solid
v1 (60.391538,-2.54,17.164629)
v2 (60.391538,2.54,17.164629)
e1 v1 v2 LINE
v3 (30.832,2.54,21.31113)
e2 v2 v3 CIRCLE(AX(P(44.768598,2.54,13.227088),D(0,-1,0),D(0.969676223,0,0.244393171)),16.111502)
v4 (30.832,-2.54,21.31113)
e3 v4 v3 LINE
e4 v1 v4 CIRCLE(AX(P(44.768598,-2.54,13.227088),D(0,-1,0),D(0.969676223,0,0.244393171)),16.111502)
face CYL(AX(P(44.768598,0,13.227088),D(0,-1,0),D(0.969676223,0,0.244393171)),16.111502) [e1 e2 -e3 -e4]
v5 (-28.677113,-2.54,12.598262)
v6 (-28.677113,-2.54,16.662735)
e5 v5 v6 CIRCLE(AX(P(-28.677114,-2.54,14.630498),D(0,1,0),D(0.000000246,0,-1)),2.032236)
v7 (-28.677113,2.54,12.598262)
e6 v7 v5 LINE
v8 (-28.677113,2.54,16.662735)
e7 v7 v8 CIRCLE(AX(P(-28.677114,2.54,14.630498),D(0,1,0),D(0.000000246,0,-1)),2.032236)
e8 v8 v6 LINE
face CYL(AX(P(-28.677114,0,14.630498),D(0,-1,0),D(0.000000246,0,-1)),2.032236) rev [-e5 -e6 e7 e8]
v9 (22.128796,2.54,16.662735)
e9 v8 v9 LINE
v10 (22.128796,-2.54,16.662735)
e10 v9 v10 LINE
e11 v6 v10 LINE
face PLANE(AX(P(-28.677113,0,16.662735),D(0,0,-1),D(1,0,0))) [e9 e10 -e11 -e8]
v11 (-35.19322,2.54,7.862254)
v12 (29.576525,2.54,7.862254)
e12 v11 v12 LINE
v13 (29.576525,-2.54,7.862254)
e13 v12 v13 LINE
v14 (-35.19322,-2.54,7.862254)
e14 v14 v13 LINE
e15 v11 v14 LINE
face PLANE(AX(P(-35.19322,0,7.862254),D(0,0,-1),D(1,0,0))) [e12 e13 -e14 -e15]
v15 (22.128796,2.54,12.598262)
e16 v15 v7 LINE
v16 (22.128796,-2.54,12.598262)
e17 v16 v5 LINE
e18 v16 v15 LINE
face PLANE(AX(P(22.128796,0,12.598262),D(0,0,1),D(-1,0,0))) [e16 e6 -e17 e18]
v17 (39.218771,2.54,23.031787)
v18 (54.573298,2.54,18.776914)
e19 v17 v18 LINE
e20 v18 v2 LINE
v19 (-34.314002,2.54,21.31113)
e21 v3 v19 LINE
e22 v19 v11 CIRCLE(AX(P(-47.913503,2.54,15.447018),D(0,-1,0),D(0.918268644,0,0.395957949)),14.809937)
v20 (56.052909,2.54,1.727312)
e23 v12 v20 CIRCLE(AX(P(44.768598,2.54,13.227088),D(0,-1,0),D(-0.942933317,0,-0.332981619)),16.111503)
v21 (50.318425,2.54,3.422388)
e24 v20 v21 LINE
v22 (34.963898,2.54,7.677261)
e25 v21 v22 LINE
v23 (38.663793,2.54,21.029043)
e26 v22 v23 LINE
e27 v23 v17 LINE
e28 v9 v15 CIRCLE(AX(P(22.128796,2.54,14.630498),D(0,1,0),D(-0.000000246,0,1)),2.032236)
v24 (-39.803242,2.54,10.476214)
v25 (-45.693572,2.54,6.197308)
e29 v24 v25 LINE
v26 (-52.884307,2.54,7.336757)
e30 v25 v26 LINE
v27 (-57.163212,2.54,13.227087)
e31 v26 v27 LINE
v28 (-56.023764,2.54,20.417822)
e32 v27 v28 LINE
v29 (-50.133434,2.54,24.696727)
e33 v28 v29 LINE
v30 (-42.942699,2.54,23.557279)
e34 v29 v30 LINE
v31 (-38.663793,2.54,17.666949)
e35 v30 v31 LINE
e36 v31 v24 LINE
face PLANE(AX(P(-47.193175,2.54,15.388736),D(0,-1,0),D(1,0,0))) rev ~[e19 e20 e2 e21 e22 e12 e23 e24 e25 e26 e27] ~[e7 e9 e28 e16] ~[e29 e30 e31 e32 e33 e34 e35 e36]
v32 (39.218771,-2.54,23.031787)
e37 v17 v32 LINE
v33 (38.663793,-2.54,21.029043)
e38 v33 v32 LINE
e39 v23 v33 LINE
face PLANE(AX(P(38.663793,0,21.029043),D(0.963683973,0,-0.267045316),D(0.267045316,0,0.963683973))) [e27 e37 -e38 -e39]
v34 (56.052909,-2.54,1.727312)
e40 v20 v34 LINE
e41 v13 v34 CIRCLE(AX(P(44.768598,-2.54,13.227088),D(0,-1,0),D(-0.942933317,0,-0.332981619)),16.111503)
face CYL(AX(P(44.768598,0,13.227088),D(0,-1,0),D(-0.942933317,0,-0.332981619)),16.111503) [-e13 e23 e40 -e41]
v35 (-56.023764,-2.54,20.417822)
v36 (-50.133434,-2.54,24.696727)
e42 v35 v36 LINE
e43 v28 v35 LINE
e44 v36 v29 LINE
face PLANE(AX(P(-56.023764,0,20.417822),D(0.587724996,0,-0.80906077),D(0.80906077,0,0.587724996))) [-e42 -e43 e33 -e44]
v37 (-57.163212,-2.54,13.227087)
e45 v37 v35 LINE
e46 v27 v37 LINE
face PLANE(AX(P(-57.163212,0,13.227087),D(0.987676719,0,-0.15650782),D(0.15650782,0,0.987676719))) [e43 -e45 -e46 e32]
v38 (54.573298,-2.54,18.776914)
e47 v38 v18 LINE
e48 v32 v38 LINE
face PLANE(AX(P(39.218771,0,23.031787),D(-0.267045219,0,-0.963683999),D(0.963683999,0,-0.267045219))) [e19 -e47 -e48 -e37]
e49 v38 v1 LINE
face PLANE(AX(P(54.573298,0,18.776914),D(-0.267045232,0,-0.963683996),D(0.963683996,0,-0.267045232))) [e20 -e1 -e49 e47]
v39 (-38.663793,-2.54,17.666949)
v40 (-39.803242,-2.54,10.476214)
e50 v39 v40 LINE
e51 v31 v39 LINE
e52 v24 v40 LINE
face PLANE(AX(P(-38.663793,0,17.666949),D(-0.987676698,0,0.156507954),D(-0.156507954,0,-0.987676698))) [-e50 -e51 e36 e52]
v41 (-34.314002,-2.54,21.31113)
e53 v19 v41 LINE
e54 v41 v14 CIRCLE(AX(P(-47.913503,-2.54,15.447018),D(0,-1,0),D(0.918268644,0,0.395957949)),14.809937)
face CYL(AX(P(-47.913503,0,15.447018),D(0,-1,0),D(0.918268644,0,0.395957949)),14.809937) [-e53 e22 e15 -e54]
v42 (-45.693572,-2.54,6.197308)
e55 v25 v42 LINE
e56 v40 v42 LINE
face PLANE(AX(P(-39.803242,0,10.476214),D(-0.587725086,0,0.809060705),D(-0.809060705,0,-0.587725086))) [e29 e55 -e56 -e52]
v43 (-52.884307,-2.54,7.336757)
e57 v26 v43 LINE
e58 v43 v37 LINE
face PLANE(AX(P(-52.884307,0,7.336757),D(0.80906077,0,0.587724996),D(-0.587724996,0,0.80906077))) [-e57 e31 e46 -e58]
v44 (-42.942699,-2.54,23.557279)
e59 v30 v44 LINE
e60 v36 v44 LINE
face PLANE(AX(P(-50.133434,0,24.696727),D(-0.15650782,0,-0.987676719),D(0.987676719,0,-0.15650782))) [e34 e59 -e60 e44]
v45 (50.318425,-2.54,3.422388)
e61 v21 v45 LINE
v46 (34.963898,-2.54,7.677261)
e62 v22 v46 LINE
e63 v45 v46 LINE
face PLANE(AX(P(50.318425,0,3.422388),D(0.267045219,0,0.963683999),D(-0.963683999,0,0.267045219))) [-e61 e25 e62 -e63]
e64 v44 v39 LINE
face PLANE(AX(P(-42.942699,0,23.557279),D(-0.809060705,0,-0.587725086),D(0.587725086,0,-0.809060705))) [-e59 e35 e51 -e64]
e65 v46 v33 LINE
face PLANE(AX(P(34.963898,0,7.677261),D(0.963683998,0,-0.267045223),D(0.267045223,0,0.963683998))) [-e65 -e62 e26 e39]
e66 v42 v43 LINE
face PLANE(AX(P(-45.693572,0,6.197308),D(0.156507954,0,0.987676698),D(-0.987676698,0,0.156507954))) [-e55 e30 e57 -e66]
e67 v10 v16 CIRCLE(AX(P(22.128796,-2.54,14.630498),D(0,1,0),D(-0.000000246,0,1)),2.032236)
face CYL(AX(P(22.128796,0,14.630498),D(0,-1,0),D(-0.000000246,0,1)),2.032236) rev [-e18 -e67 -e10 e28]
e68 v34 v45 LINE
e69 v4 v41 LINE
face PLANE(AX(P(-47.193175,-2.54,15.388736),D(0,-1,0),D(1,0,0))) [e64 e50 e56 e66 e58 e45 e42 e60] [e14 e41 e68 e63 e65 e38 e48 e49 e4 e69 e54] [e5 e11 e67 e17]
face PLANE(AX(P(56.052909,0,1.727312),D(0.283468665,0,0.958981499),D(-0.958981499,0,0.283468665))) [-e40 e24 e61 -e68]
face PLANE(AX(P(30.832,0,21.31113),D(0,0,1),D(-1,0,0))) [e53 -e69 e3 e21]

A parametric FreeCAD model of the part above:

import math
import FreeCAD as App
import Part
import Sketcher

V = App.Vector
Q = App.Units.Quantity

doc = App.newDocument("Part")
params = doc.addObject("Spreadsheet::Sheet", "Params")
for row, (alias, value) in enumerate([
    ("pad1_length", "0.2 in"),
], start=1):
    params.set(f"A{row}", alias)
    params.set(f"B{row}", "=" + value)
    params.setAlias(f"B{row}", alias)

body = doc.addObject("PartDesign::Body", "Body")

# Sketch on XZ plane
sketch1 = doc.addObject("Sketcher::SketchObject", "Sketch")
body.addObject(sketch1)
sketch1.AttachmentSupport = (doc.XZ_Plane, [""])
sketch1.MapMode = "FlatFace"
sketch1.addGeometry(Part.LineSegment(V(30.832, 21.31113, 0), V(-34.314002, 21.31113, 0)), False)
sketch1.addGeometry(Part.ArcOfCircle(Part.Circle(V(-47.913503, 15.447018, 0), V(0, 0, 1), 14.809937), math.radians(23.325732), math.radians(329.193509)), False)
sketch1.addGeometry(Part.LineSegment(V(-35.19322, 7.862254, 0), V(29.576525, 7.862254, 0)), False)
sketch1.addGeometry(Part.ArcOfCircle(Part.Circle(V(44.768598, 13.227088, 0), V(0, 0, 1), 16.111503), math.radians(-160.550152), math.radians(-45.541821)), False)
sketch1.addGeometry(Part.LineSegment(V(56.052909, 1.727312, 0), V(50.318425, 3.422388, 0)), False)
sketch1.addGeometry(Part.LineSegment(V(50.318425, 3.422388, 0), V(34.963898, 7.677261, 0)), False)
sketch1.addGeometry(Part.LineSegment(V(34.963898, 7.677261, 0), V(38.663793, 21.029043, 0)), False)
sketch1.addGeometry(Part.LineSegment(V(38.663793, 21.029043, 0), V(39.218771, 23.031787, 0)), False)
sketch1.addGeometry(Part.LineSegment(V(39.218771, 23.031787, 0), V(54.573298, 18.776914, 0)), False)
sketch1.addGeometry(Part.LineSegment(V(54.573298, 18.776914, 0), V(60.391538, 17.164629, 0)), False)
sketch1.addGeometry(Part.ArcOfCircle(Part.Circle(V(44.768598, 13.227088, 0), V(0, 0, 1), 16.111502), math.radians(14.145975), math.radians(149.883759)), False)
sketch1.addGeometry(Part.LineSegment(V(22.128796, 12.598262, 0), V(-28.677113, 12.598262, 0)), False)
sketch1.addGeometry(Part.ArcOfCircle(Part.Circle(V(-28.677114, 14.630498, 0), V(0, 0, 1), 2.032236), math.radians(89.999986), math.radians(270.000014)), False)
sketch1.addGeometry(Part.LineSegment(V(-28.677113, 16.662735, 0), V(22.128796, 16.662735, 0)), False)
sketch1.addGeometry(Part.ArcOfCircle(Part.Circle(V(22.128796, 14.630498, 0), V(0, 0, 1), 2.032236), math.radians(-90.000014), math.radians(90.000014)), False)
sketch1.addGeometry(Part.LineSegment(V(-50.133434, 24.696727, 0), V(-42.942699, 23.557279, 0)), False)
sketch1.addGeometry(Part.LineSegment(V(-42.942699, 23.557279, 0), V(-38.663793, 17.666949, 0)), False)
sketch1.addGeometry(Part.LineSegment(V(-38.663793, 17.666949, 0), V(-39.803242, 10.476214, 0)), False)
sketch1.addGeometry(Part.LineSegment(V(-39.803242, 10.476214, 0), V(-45.693572, 6.197308, 0)), False)
sketch1.addGeometry(Part.LineSegment(V(-45.693572, 6.197308, 0), V(-52.884307, 7.336757, 0)), False)
sketch1.addGeometry(Part.LineSegment(V(-52.884307, 7.336757, 0), V(-57.163212, 13.227087, 0)), False)
sketch1.addGeometry(Part.LineSegment(V(-57.163212, 13.227087, 0), V(-56.023764, 20.417822, 0)), False)
sketch1.addGeometry(Part.LineSegment(V(-56.023764, 20.417822, 0), V(-50.133434, 24.696727, 0)), False)
sketch1.addConstraint(Sketcher.Constraint("Coincident", 0, 2, 1, 1))
sketch1.addConstraint(Sketcher.Constraint("Coincident", 1, 2, 2, 1))
sketch1.addConstraint(Sketcher.Constraint("Coincident", 2, 2, 3, 1))
sketch1.addConstraint(Sketcher.Constraint("Coincident", 3, 2, 4, 1))
sketch1.addConstraint(Sketcher.Constraint("Coincident", 4, 2, 5, 1))
sketch1.addConstraint(Sketcher.Constraint("Coincident", 5, 2, 6, 1))
sketch1.addConstraint(Sketcher.Constraint("Coincident", 6, 2, 7, 1))
sketch1.addConstraint(Sketcher.Constraint("Coincident", 7, 2, 8, 1))
sketch1.addConstraint(Sketcher.Constraint("Coincident", 8, 2, 9, 1))
sketch1.addConstraint(Sketcher.Constraint("Coincident", 9, 2, 10, 1))
sketch1.addConstraint(Sketcher.Constraint("Coincident", 10, 2, 0, 1))
sketch1.addConstraint(Sketcher.Constraint("Tangent", 11, 2, 12, 2))
sketch1.addConstraint(Sketcher.Constraint("Tangent", 12, 1, 13, 1))
sketch1.addConstraint(Sketcher.Constraint("Tangent", 13, 2, 14, 2))
sketch1.addConstraint(Sketcher.Constraint("Tangent", 14, 1, 11, 1))
sketch1.addConstraint(Sketcher.Constraint("Coincident", 15, 2, 16, 1))
sketch1.addConstraint(Sketcher.Constraint("Coincident", 16, 2, 17, 1))
sketch1.addConstraint(Sketcher.Constraint("Coincident", 17, 2, 18, 1))
sketch1.addConstraint(Sketcher.Constraint("Coincident", 18, 2, 19, 1))
sketch1.addConstraint(Sketcher.Constraint("Coincident", 19, 2, 20, 1))
sketch1.addConstraint(Sketcher.Constraint("Coincident", 20, 2, 21, 1))
sketch1.addConstraint(Sketcher.Constraint("Coincident", 21, 2, 22, 1))
sketch1.addConstraint(Sketcher.Constraint("Coincident", 22, 2, 15, 1))
sketch1.addConstraint(Sketcher.Constraint("Horizontal", 0))
sketch1.addConstraint(Sketcher.Constraint("Horizontal", 2))
sketch1.addConstraint(Sketcher.Constraint("Horizontal", 11))
sketch1.addConstraint(Sketcher.Constraint("Horizontal", 13))
sketch1.addConstraint(Sketcher.Constraint("Coincident", 10, 3, 3, 3))
sketch1.addConstraint(Sketcher.Constraint("Equal", 3, 10))
sketch1.addConstraint(Sketcher.Constraint("Perpendicular", 5, 6))
sketch1.addConstraint(Sketcher.Constraint("Parallel", 6, 7))
sketch1.addConstraint(Sketcher.Constraint("Perpendicular", 7, 8))
sketch1.addConstraint(Sketcher.Constraint("Parallel", 8, 9))
sketch1.addConstraint(Sketcher.Constraint("Perpendicular", 15, 17))
sketch1.addConstraint(Sketcher.Constraint("Perpendicular", 16, 18))
sketch1.addConstraint(Sketcher.Constraint("Perpendicular", 17, 19))
sketch1.addConstraint(Sketcher.Constraint("Perpendicular", 18, 20))
sketch1.addConstraint(Sketcher.Constraint("Perpendicular", 19, 21))
sketch1.addConstraint(Sketcher.Constraint("Perpendicular", 20, 22))
sketch1.addConstraint(Sketcher.Constraint("Horizontal", 10, 3, 20, 2))
sketch1.addConstraint(Sketcher.Constraint("Equal", 5, 8))
sketch1.addConstraint(Sketcher.Constraint("Equal", 15, 16))
sketch1.addConstraint(Sketcher.Constraint("Equal", 16, 17))
sketch1.addConstraint(Sketcher.Constraint("Equal", 17, 18))
sketch1.addConstraint(Sketcher.Constraint("Equal", 18, 19))
sketch1.addConstraint(Sketcher.Constraint("Equal", 19, 20))
sketch1.addConstraint(Sketcher.Constraint("Radius", 10, 16.111502))
sketch1.addConstraint(Sketcher.Constraint("Radius", 1, 14.809937))
sketch1.addConstraint(Sketcher.Constraint("Radius", 12, 2.032236))
sketch1.addConstraint(Sketcher.Constraint("DistanceY", 17, 2, 16, 2, Q("0.2830998 in")))
sketch1.addConstraint(Sketcher.Constraint("DistanceX", 11, 2, 11, 1, 50.805909))
sketch1.addConstraint(Sketcher.Constraint("DistanceX", -1, 1, 3, 3, 44.768598))
sketch1.addConstraint(Sketcher.Constraint("DistanceY", -1, 1, 12, 3, 14.630498))
sketch1.addConstraint(Sketcher.Constraint("DistanceX", -1, 1, 10, 2, 30.832))
sketch1.addConstraint(Sketcher.Constraint("DistanceX", 15, 2, -1, 1, 42.942699))
sketch1.addConstraint(Sketcher.Constraint("DistanceX", 1, 3, 3, 3, 92.682101))
sketch1.addConstraint(Sketcher.Constraint("DistanceX", 14, 3, 10, 3, 22.639801))
sketch1.addConstraint(Sketcher.Constraint("DistanceX", 1, 3, 0, 2, 13.599501))
sketch1.addConstraint(Sketcher.Constraint("DistanceY", 4, 2, 10, 3, 9.8047))
sketch1.addConstraint(Sketcher.Constraint("DistanceX", 2, 2, 4, 2, 20.7419))
sketch1.addConstraint(Sketcher.Constraint("DistanceX", 5, 2, 10, 3, 9.8047))
sketch1.addConstraint(Sketcher.Constraint("DistanceY", 3, 3, 7, 2, 9.804699))
sketch1.addConstraint(Sketcher.Constraint("DistanceX", 3, 3, 8, 2, 9.8047))
sketch1.addConstraint(Sketcher.Constraint("DistanceY", 5, 2, 14, 1, 4.921001))
sketch1.addConstraint(Sketcher.Constraint("DistanceX", 2, 1, 2, 2, 64.769745))
sketch1.addConstraint(Sketcher.Constraint("DistanceX", -1, 1, 3, 2, 56.052909))
sketch1.addConstraint(Sketcher.Constraint("DistanceY", -1, 1, 15, 2, 23.557279))
sketch1.addConstraint(Sketcher.Constraint("DistanceY", -1, 1, 16, 2, 17.666949))
sketch1.addConstraint(Sketcher.Constraint("DistanceY", 2, 2, 6, 2, 13.166789))
pad1 = doc.addObject("PartDesign::Pad", "Pad")
body.addObject(pad1)
pad1.Profile = sketch1
pad1.setExpression("Length", "Params.pad1_length")
pad1.Midplane = True

doc.recompute()
